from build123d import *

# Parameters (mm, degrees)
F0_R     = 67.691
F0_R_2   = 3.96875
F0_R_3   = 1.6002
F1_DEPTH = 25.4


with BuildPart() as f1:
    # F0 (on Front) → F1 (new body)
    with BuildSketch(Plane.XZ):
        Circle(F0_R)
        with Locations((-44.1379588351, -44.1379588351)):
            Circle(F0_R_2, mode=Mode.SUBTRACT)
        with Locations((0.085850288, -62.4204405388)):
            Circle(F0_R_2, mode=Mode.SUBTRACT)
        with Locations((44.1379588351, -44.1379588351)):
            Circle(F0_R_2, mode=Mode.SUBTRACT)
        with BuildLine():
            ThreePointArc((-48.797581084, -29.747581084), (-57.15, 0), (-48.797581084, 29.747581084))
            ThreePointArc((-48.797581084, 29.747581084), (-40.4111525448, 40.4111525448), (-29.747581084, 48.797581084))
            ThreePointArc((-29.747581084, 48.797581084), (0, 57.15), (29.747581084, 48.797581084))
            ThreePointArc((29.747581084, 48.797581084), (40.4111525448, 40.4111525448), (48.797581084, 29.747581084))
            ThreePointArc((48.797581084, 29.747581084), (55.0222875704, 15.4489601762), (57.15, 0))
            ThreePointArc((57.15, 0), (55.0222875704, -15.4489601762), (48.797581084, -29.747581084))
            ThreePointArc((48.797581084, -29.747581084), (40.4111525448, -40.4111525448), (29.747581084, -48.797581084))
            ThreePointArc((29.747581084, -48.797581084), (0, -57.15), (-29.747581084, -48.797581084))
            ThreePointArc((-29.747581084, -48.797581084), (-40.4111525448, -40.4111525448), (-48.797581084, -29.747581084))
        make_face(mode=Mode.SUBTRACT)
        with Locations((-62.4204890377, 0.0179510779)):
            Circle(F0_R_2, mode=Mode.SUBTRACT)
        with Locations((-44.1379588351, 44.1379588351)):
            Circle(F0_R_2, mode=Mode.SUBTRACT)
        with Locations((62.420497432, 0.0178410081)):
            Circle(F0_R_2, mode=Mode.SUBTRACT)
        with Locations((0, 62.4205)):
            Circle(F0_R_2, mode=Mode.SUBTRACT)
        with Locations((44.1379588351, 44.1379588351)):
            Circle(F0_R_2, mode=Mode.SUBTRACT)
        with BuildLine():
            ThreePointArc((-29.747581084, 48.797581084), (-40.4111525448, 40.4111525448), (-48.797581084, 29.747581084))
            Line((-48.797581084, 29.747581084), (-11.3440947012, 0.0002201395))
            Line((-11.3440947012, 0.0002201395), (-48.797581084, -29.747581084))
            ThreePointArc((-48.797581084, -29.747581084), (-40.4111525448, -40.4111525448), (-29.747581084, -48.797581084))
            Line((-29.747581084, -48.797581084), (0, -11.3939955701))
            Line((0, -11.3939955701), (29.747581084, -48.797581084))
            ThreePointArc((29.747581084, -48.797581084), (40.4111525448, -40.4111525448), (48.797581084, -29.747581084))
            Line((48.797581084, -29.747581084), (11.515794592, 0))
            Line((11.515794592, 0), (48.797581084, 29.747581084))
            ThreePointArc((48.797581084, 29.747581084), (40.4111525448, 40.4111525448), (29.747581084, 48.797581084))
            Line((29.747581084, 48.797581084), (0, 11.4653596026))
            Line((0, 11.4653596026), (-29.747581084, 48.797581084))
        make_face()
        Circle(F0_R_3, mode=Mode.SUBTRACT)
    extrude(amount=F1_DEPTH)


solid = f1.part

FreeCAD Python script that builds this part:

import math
import FreeCAD as App
import Part
import Sketcher
Q = App.Units.Quantity

doc = App.newDocument("Part")
body = doc.addObject("PartDesign::Body", "Body")

# Sketch on XZ plane
sketch1 = doc.addObject("Sketcher::SketchObject", "Sketch")
body.addObject(sketch1)
sketch1.AttachmentSupport = (doc.XZ_Plane, [""])
sketch1.MapMode = "FlatFace"
sketch1.addGeometry(Part.Circle(App.Vector(0, 0, 0), App.Vector(0, 0, 1), 67.691), False)
sketch1.addGeometry(Part.Circle(App.Vector(-44.137959, -44.137959, 0), App.Vector(0, 0, 1), 3.96875), False)
sketch1.addGeometry(Part.ArcOfCircle(Part.Circle(App.Vector(0, 0, 0), App.Vector(0, 0, 1), 57.15), math.radians(-121.366978), math.radians(-58.633022)), False)
sketch1.addGeometry(Part.LineSegment(App.Vector(-29.747581, -48.797581, 0), App.Vector(0, -11.393996, 0)), False)
sketch1.addGeometry(Part.LineSegment(App.Vector(0, -11.393996, 0), App.Vector(29.747581, -48.797581, 0)), False)
sketch1.addGeometry(Part.ArcOfCircle(Part.Circle(App.Vector(0, 0, 0), App.Vector(0, 0, 1), 57.15), math.radians(148.633022), math.radians(211.366978)), False)
sketch1.addGeometry(Part.LineSegment(App.Vector(-48.797581, 29.747581, 0), App.Vector(-11.344095, 0.00022, 0)), False)
sketch1.addGeometry(Part.LineSegment(App.Vector(-11.344095, 0.00022, 0), App.Vector(-48.797581, -29.747581, 0)), False)
sketch1.addGeometry(Part.Circle(App.Vector(0, 0, 0), App.Vector(0, 0, 1), 1.6002), False)
sketch1.addGeometry(Part.Circle(App.Vector(0.08585, -62.420441, 0), App.Vector(0, 0, 1), 3.96875), False)
sketch1.addGeometry(Part.Circle(App.Vector(44.137959, -44.137959, 0), App.Vector(0, 0, 1), 3.96875), False)
sketch1.addGeometry(Part.ArcOfCircle(Part.Circle(App.Vector(0, 0, 0), App.Vector(0, 0, 1), 57.15), math.radians(-31.366978), math.radians(0)), False)
sketch1.addGeometry(Part.LineSegment(App.Vector(48.797581, -29.747581, 0), App.Vector(11.515795, 0, 0)), False)
sketch1.addGeometry(Part.LineSegment(App.Vector(11.515795, 0, 0), App.Vector(48.797581, 29.747581, 0)), False)
sketch1.addGeometry(Part.ArcOfCircle(Part.Circle(App.Vector(0, 0, 0), App.Vector(0, 0, 1), 57.15), math.radians(0), math.radians(31.366978)), False)
sketch1.addGeometry(Part.Circle(App.Vector(-62.420489, 0.017951, 0), App.Vector(0, 0, 1), 3.96875), False)
sketch1.addGeometry(Part.Circle(App.Vector(-44.137959, 44.137959, 0), App.Vector(0, 0, 1), 3.96875), False)
sketch1.addGeometry(Part.ArcOfCircle(Part.Circle(App.Vector(0, 0, 0), App.Vector(0, 0, 1), 57.15), math.radians(58.633022), math.radians(121.366978)), False)
sketch1.addGeometry(Part.LineSegment(App.Vector(29.747581, 48.797581, 0), App.Vector(0, 11.46536, 0)), False)
sketch1.addGeometry(Part.LineSegment(App.Vector(0, 11.46536, 0), App.Vector(-29.747581, 48.797581, 0)), False)
sketch1.addGeometry(Part.Circle(App.Vector(0, 62.4205, 0), App.Vector(0, 0, 1), 3.96875), False)
sketch1.addGeometry(Part.Circle(App.Vector(62.420497, 0.017841, 0), App.Vector(0, 0, 1), 3.96875), False)
sketch1.addGeometry(Part.Circle(App.Vector(44.137959, 44.137959, 0), App.Vector(0, 0, 1), 3.96875), False)
sketch1.addConstraint(Sketcher.Constraint("Coincident", 2, 1, 3, 1))
sketch1.addConstraint(Sketcher.Constraint("Coincident", 3, 2, 4, 1))
sketch1.addConstraint(Sketcher.Constraint("Coincident", 4, 2, 2, 2))
sketch1.addConstraint(Sketcher.Constraint("Coincident", 5, 1, 6, 1))
sketch1.addConstraint(Sketcher.Constraint("Coincident", 6, 2, 7, 1))
sketch1.addConstraint(Sketcher.Constraint("Coincident", 7, 2, 5, 2))
sketch1.addConstraint(Sketcher.Constraint("Coincident", 11, 1, 12, 1))
sketch1.addConstraint(Sketcher.Constraint("Coincident", 12, 2, 13, 1))
sketch1.addConstraint(Sketcher.Constraint("Coincident", 13, 2, 14, 2))
sketch1.addConstraint(Sketcher.Constraint("Tangent", 14, 1, 11, 2))
sketch1.addConstraint(Sketcher.Constraint("Coincident", 17, 1, 18, 1))
sketch1.addConstraint(Sketcher.Constraint("Coincident", 18, 2, 19, 1))
sketch1.addConstraint(Sketcher.Constraint("Coincident", 19, 2, 17, 2))
sketch1.addConstraint(Sketcher.Constraint("Coincident", 0, 3, -1, 1))
sketch1.addConstraint(Sketcher.Constraint("Coincident", 2, 3, -1, 1))
sketch1.addConstraint(Sketcher.Constraint("Coincident", 5, 3, -1, 1))
sketch1.addConstraint(Sketcher.Constraint("Coincident", 8, 3, -1, 1))
sketch1.addConstraint(Sketcher.Constraint("Coincident", 11, 3, -1, 1))
sketch1.addConstraint(Sketcher.Constraint("Coincident", 17, 3, -1, 1))
sketch1.addConstraint(Sketcher.Constraint("Equal", 2, 5))
sketch1.addConstraint(Sketcher.Constraint("Equal", 1, 9))
sketch1.addConstraint(Sketcher.Constraint("Equal", 9, 10))
sketch1.addConstraint(Sketcher.Constraint("Equal", 5, 11))
sketch1.addConstraint(Sketcher.Constraint("Equal", 11, 14))
sketch1.addConstraint(Sketcher.Constraint("Equal", 10, 15))
sketch1.addConstraint(Sketcher.Constraint("Equal", 15, 16))
sketch1.addConstraint(Sketcher.Constraint("Equal", 14, 17))
sketch1.addConstraint(Sketcher.Constraint("Equal", 16, 20))
sketch1.addConstraint(Sketcher.Constraint("Equal", 20, 21))
sketch1.addConstraint(Sketcher.Constraint("Equal", 21, 22))
sketch1.addConstraint(Sketcher.Constraint("Symmetric", 10, 3, 16, 3, -1, 1))
sketch1.addConstraint(Sketcher.Constraint("Symmetric", 1, 3, 22, 3, -1, 1))
sketch1.addConstraint(Sketcher.Constraint("Symmetric", 1, 3, 10, 3, -2))
sketch1.addConstraint(Sketcher.Constraint("PointOnObject", 20, 3, -2))
sketch1.addConstraint(Sketcher.Constraint("PointOnObject", 3, 2, -2))
sketch1.addConstraint(Sketcher.Constraint("PointOnObject", 12, 2, -1))
sketch1.addConstraint(Sketcher.Constraint("PointOnObject", 14, 1, -1))
sketch1.addConstraint(Sketcher.Constraint("PointOnObject", 18, 2, -2))
sketch1.addConstraint(Sketcher.Constraint("Horizontal", 2, 1, 4, 2))
sketch1.addConstraint(Sketcher.Constraint("Horizontal", 7, 2, 11, 1))
sketch1.addConstraint(Sketcher.Constraint("Horizontal", 5, 1, 13, 2))
sketch1.addConstraint(Sketcher.Constraint("Horizontal", 17, 1, 19, 2))
sketch1.addConstraint(Sketcher.Constraint("Vertical", 5, 1, 7, 2))
sketch1.addConstraint(Sketcher.Constraint("Vertical", 4, 2, 17, 1))
sketch1.addConstraint(Sketcher.Constraint("Diameter", 0, Q("5.33 in")))
sketch1.addConstraint(Sketcher.Constraint("Radius", 2, Q("2.25 in")))
sketch1.addConstraint(Sketcher.Constraint("Diameter", 1, Q("0.3125 in")))
sketch1.addConstraint(Sketcher.Constraint("Diameter", 8, Q("0.126 in")))
sketch1.addConstraint(Sketcher.Constraint("DistanceX", 7, 2, 2, 1, Q("0.75 in")))
sketch1.addConstraint(Sketcher.Constraint("DistanceY", 2, 1, 7, 2, Q("0.75 in")))
sketch1.addConstraint(Sketcher.Constraint("DistanceY", -1, 1, 20, 3, Q("2.4575 in")))
sketch1.addConstraint(Sketcher.Constraint("DistanceX", -1, 1, 21, 3, Q("2.4574999 in")))
sketch1.addConstraint(Sketcher.Constraint("DistanceY", 10, 3, 21, 3, Q("44.1558 mm")))
sketch1.addConstraint(Sketcher.Constraint("DistanceY", 7, 2, 6, 2, Q("29.747801 mm")))
sketch1.addConstraint(Sketcher.Constraint("Distance", 7, Q("47.829858 mm")))
sketch1.addConstraint(Sketcher.Constraint("Distance", 12, Q("47.69539 mm")))
sketch1.addConstraint(Sketcher.Constraint("DistanceX", 1, 3, -1, 1, Q("44.137959 mm")))
sketch1.addConstraint(Sketcher.Constraint("DistanceY", 1, 3, -1, 1, Q("44.137959 mm")))
sketch1.addConstraint(Sketcher.Constraint("DistanceX", -1, 1, 9, 3, Q("0.08585 mm")))
sketch1.addConstraint(Sketcher.Constraint("DistanceY", 9, 3, -1, 1, Q("62.420441 mm")))
sketch1.addConstraint(Sketcher.Constraint("DistanceX", 15, 3, -1, 1, Q("62.420489 mm")))
sketch1.addConstraint(Sketcher.Constraint("DistanceY", -1, 1, 15, 3, Q("0.017951 mm")))
sketch1.addConstraint(Sketcher.Constraint("DistanceY", -1, 1, 18, 2, Q("11.46536 mm")))
sketch1.addConstraint(Sketcher.Constraint("Distance", 3, Q("47.790656 mm")))
pad1 = doc.addObject("PartDesign::Pad", "Pad")
body.addObject(pad1)
pad1.Profile = sketch1
pad1.Length = Q("1 in")

doc.recompute()
